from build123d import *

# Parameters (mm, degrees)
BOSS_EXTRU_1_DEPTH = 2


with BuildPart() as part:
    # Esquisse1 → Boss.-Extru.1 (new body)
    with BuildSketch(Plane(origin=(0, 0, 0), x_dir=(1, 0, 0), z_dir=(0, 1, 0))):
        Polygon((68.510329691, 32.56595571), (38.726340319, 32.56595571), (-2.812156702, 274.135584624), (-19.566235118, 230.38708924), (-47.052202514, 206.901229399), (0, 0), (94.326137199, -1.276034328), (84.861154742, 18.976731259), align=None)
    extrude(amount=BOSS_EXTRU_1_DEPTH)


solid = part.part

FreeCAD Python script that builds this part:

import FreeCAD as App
import Part
import Sketcher
Q = App.Units.Quantity


def add_polygon(sketch, points):
    """Adds a closed chain of lines whose ends are joined by coincident constraints."""
    first, n = sketch.GeometryCount, len(points)
    for a, b in zip(points, points[1:] + points[:1]):
        sketch.addGeometry(Part.LineSegment(App.Vector(*a, 0), App.Vector(*b, 0)), False)
    for i in range(n):
        sketch.addConstraint(Sketcher.Constraint("Coincident", first + i, 2, first + (i + 1) % n, 1))

doc = App.newDocument("Part")
body = doc.addObject("PartDesign::Body", "Body")

sketch1 = doc.addObject("Sketcher::SketchObject", "Sketch")
body.addObject(sketch1)
sketch1.AttachmentSupport = (doc.XZ_Plane, [""])
sketch1.MapMode = "FlatFace"
add_polygon(sketch1, [(69, -33), (39, -33), (-3, -274), (-20, -230), (-47, -207), (0, 0), (94, 1), (85, -19)])
sketch1.addConstraint(Sketcher.Constraint("Horizontal", 0))
sketch1.addConstraint(Sketcher.Constraint("Coincident", 4, 2, -1, 1))
sketch1.addConstraint(Sketcher.Constraint("DistanceX", 0, 2, 0, 1, Q("29.783989 mm")))
sketch1.addConstraint(Sketcher.Constraint("DistanceY", 3, 2, 6, 2, Q("187.924498 mm")))
sketch1.addConstraint(Sketcher.Constraint("Distance", 2, Q("46.846878 mm")))
sketch1.addConstraint(Sketcher.Constraint("Distance", 3, Q("36.15334 mm")))
sketch1.addConstraint(Sketcher.Constraint("Distance", 4, Q("212.18395 mm")))
sketch1.addConstraint(Sketcher.Constraint("Distance", 6, Q("22.355322 mm")))
sketch1.addConstraint(Sketcher.Constraint("Distance", 7, Q("21.26068 mm")))
sketch1.addConstraint(Sketcher.Constraint("DistanceX", -1, 1, 0, 2, Q("38.72634 mm")))
sketch1.addConstraint(Sketcher.Constraint("DistanceY", 2, 2, -1, 1, Q("230.387089 mm")))
sketch1.addConstraint(Sketcher.Constraint("DistanceY", 3, 2, -1, 1, Q("206.901229 mm")))
sketch1.addConstraint(Sketcher.Constraint("DistanceY", 1, 2, 0, 2, Q("241.569629 mm")))
sketch1.addConstraint(Sketcher.Constraint("DistanceX", 2, 2, 1, 2, Q("16.754078 mm")))
sketch1.addConstraint(Sketcher.Constraint("DistanceY", 0, 2, 5, 2, Q("33.84199 mm")))
pad1 = doc.addObject("PartDesign::Pad", "Pad")
body.addObject(pad1)
pad1.Profile = sketch1
pad1.Length = 2
pad1.Reversed = True

doc.recompute()
